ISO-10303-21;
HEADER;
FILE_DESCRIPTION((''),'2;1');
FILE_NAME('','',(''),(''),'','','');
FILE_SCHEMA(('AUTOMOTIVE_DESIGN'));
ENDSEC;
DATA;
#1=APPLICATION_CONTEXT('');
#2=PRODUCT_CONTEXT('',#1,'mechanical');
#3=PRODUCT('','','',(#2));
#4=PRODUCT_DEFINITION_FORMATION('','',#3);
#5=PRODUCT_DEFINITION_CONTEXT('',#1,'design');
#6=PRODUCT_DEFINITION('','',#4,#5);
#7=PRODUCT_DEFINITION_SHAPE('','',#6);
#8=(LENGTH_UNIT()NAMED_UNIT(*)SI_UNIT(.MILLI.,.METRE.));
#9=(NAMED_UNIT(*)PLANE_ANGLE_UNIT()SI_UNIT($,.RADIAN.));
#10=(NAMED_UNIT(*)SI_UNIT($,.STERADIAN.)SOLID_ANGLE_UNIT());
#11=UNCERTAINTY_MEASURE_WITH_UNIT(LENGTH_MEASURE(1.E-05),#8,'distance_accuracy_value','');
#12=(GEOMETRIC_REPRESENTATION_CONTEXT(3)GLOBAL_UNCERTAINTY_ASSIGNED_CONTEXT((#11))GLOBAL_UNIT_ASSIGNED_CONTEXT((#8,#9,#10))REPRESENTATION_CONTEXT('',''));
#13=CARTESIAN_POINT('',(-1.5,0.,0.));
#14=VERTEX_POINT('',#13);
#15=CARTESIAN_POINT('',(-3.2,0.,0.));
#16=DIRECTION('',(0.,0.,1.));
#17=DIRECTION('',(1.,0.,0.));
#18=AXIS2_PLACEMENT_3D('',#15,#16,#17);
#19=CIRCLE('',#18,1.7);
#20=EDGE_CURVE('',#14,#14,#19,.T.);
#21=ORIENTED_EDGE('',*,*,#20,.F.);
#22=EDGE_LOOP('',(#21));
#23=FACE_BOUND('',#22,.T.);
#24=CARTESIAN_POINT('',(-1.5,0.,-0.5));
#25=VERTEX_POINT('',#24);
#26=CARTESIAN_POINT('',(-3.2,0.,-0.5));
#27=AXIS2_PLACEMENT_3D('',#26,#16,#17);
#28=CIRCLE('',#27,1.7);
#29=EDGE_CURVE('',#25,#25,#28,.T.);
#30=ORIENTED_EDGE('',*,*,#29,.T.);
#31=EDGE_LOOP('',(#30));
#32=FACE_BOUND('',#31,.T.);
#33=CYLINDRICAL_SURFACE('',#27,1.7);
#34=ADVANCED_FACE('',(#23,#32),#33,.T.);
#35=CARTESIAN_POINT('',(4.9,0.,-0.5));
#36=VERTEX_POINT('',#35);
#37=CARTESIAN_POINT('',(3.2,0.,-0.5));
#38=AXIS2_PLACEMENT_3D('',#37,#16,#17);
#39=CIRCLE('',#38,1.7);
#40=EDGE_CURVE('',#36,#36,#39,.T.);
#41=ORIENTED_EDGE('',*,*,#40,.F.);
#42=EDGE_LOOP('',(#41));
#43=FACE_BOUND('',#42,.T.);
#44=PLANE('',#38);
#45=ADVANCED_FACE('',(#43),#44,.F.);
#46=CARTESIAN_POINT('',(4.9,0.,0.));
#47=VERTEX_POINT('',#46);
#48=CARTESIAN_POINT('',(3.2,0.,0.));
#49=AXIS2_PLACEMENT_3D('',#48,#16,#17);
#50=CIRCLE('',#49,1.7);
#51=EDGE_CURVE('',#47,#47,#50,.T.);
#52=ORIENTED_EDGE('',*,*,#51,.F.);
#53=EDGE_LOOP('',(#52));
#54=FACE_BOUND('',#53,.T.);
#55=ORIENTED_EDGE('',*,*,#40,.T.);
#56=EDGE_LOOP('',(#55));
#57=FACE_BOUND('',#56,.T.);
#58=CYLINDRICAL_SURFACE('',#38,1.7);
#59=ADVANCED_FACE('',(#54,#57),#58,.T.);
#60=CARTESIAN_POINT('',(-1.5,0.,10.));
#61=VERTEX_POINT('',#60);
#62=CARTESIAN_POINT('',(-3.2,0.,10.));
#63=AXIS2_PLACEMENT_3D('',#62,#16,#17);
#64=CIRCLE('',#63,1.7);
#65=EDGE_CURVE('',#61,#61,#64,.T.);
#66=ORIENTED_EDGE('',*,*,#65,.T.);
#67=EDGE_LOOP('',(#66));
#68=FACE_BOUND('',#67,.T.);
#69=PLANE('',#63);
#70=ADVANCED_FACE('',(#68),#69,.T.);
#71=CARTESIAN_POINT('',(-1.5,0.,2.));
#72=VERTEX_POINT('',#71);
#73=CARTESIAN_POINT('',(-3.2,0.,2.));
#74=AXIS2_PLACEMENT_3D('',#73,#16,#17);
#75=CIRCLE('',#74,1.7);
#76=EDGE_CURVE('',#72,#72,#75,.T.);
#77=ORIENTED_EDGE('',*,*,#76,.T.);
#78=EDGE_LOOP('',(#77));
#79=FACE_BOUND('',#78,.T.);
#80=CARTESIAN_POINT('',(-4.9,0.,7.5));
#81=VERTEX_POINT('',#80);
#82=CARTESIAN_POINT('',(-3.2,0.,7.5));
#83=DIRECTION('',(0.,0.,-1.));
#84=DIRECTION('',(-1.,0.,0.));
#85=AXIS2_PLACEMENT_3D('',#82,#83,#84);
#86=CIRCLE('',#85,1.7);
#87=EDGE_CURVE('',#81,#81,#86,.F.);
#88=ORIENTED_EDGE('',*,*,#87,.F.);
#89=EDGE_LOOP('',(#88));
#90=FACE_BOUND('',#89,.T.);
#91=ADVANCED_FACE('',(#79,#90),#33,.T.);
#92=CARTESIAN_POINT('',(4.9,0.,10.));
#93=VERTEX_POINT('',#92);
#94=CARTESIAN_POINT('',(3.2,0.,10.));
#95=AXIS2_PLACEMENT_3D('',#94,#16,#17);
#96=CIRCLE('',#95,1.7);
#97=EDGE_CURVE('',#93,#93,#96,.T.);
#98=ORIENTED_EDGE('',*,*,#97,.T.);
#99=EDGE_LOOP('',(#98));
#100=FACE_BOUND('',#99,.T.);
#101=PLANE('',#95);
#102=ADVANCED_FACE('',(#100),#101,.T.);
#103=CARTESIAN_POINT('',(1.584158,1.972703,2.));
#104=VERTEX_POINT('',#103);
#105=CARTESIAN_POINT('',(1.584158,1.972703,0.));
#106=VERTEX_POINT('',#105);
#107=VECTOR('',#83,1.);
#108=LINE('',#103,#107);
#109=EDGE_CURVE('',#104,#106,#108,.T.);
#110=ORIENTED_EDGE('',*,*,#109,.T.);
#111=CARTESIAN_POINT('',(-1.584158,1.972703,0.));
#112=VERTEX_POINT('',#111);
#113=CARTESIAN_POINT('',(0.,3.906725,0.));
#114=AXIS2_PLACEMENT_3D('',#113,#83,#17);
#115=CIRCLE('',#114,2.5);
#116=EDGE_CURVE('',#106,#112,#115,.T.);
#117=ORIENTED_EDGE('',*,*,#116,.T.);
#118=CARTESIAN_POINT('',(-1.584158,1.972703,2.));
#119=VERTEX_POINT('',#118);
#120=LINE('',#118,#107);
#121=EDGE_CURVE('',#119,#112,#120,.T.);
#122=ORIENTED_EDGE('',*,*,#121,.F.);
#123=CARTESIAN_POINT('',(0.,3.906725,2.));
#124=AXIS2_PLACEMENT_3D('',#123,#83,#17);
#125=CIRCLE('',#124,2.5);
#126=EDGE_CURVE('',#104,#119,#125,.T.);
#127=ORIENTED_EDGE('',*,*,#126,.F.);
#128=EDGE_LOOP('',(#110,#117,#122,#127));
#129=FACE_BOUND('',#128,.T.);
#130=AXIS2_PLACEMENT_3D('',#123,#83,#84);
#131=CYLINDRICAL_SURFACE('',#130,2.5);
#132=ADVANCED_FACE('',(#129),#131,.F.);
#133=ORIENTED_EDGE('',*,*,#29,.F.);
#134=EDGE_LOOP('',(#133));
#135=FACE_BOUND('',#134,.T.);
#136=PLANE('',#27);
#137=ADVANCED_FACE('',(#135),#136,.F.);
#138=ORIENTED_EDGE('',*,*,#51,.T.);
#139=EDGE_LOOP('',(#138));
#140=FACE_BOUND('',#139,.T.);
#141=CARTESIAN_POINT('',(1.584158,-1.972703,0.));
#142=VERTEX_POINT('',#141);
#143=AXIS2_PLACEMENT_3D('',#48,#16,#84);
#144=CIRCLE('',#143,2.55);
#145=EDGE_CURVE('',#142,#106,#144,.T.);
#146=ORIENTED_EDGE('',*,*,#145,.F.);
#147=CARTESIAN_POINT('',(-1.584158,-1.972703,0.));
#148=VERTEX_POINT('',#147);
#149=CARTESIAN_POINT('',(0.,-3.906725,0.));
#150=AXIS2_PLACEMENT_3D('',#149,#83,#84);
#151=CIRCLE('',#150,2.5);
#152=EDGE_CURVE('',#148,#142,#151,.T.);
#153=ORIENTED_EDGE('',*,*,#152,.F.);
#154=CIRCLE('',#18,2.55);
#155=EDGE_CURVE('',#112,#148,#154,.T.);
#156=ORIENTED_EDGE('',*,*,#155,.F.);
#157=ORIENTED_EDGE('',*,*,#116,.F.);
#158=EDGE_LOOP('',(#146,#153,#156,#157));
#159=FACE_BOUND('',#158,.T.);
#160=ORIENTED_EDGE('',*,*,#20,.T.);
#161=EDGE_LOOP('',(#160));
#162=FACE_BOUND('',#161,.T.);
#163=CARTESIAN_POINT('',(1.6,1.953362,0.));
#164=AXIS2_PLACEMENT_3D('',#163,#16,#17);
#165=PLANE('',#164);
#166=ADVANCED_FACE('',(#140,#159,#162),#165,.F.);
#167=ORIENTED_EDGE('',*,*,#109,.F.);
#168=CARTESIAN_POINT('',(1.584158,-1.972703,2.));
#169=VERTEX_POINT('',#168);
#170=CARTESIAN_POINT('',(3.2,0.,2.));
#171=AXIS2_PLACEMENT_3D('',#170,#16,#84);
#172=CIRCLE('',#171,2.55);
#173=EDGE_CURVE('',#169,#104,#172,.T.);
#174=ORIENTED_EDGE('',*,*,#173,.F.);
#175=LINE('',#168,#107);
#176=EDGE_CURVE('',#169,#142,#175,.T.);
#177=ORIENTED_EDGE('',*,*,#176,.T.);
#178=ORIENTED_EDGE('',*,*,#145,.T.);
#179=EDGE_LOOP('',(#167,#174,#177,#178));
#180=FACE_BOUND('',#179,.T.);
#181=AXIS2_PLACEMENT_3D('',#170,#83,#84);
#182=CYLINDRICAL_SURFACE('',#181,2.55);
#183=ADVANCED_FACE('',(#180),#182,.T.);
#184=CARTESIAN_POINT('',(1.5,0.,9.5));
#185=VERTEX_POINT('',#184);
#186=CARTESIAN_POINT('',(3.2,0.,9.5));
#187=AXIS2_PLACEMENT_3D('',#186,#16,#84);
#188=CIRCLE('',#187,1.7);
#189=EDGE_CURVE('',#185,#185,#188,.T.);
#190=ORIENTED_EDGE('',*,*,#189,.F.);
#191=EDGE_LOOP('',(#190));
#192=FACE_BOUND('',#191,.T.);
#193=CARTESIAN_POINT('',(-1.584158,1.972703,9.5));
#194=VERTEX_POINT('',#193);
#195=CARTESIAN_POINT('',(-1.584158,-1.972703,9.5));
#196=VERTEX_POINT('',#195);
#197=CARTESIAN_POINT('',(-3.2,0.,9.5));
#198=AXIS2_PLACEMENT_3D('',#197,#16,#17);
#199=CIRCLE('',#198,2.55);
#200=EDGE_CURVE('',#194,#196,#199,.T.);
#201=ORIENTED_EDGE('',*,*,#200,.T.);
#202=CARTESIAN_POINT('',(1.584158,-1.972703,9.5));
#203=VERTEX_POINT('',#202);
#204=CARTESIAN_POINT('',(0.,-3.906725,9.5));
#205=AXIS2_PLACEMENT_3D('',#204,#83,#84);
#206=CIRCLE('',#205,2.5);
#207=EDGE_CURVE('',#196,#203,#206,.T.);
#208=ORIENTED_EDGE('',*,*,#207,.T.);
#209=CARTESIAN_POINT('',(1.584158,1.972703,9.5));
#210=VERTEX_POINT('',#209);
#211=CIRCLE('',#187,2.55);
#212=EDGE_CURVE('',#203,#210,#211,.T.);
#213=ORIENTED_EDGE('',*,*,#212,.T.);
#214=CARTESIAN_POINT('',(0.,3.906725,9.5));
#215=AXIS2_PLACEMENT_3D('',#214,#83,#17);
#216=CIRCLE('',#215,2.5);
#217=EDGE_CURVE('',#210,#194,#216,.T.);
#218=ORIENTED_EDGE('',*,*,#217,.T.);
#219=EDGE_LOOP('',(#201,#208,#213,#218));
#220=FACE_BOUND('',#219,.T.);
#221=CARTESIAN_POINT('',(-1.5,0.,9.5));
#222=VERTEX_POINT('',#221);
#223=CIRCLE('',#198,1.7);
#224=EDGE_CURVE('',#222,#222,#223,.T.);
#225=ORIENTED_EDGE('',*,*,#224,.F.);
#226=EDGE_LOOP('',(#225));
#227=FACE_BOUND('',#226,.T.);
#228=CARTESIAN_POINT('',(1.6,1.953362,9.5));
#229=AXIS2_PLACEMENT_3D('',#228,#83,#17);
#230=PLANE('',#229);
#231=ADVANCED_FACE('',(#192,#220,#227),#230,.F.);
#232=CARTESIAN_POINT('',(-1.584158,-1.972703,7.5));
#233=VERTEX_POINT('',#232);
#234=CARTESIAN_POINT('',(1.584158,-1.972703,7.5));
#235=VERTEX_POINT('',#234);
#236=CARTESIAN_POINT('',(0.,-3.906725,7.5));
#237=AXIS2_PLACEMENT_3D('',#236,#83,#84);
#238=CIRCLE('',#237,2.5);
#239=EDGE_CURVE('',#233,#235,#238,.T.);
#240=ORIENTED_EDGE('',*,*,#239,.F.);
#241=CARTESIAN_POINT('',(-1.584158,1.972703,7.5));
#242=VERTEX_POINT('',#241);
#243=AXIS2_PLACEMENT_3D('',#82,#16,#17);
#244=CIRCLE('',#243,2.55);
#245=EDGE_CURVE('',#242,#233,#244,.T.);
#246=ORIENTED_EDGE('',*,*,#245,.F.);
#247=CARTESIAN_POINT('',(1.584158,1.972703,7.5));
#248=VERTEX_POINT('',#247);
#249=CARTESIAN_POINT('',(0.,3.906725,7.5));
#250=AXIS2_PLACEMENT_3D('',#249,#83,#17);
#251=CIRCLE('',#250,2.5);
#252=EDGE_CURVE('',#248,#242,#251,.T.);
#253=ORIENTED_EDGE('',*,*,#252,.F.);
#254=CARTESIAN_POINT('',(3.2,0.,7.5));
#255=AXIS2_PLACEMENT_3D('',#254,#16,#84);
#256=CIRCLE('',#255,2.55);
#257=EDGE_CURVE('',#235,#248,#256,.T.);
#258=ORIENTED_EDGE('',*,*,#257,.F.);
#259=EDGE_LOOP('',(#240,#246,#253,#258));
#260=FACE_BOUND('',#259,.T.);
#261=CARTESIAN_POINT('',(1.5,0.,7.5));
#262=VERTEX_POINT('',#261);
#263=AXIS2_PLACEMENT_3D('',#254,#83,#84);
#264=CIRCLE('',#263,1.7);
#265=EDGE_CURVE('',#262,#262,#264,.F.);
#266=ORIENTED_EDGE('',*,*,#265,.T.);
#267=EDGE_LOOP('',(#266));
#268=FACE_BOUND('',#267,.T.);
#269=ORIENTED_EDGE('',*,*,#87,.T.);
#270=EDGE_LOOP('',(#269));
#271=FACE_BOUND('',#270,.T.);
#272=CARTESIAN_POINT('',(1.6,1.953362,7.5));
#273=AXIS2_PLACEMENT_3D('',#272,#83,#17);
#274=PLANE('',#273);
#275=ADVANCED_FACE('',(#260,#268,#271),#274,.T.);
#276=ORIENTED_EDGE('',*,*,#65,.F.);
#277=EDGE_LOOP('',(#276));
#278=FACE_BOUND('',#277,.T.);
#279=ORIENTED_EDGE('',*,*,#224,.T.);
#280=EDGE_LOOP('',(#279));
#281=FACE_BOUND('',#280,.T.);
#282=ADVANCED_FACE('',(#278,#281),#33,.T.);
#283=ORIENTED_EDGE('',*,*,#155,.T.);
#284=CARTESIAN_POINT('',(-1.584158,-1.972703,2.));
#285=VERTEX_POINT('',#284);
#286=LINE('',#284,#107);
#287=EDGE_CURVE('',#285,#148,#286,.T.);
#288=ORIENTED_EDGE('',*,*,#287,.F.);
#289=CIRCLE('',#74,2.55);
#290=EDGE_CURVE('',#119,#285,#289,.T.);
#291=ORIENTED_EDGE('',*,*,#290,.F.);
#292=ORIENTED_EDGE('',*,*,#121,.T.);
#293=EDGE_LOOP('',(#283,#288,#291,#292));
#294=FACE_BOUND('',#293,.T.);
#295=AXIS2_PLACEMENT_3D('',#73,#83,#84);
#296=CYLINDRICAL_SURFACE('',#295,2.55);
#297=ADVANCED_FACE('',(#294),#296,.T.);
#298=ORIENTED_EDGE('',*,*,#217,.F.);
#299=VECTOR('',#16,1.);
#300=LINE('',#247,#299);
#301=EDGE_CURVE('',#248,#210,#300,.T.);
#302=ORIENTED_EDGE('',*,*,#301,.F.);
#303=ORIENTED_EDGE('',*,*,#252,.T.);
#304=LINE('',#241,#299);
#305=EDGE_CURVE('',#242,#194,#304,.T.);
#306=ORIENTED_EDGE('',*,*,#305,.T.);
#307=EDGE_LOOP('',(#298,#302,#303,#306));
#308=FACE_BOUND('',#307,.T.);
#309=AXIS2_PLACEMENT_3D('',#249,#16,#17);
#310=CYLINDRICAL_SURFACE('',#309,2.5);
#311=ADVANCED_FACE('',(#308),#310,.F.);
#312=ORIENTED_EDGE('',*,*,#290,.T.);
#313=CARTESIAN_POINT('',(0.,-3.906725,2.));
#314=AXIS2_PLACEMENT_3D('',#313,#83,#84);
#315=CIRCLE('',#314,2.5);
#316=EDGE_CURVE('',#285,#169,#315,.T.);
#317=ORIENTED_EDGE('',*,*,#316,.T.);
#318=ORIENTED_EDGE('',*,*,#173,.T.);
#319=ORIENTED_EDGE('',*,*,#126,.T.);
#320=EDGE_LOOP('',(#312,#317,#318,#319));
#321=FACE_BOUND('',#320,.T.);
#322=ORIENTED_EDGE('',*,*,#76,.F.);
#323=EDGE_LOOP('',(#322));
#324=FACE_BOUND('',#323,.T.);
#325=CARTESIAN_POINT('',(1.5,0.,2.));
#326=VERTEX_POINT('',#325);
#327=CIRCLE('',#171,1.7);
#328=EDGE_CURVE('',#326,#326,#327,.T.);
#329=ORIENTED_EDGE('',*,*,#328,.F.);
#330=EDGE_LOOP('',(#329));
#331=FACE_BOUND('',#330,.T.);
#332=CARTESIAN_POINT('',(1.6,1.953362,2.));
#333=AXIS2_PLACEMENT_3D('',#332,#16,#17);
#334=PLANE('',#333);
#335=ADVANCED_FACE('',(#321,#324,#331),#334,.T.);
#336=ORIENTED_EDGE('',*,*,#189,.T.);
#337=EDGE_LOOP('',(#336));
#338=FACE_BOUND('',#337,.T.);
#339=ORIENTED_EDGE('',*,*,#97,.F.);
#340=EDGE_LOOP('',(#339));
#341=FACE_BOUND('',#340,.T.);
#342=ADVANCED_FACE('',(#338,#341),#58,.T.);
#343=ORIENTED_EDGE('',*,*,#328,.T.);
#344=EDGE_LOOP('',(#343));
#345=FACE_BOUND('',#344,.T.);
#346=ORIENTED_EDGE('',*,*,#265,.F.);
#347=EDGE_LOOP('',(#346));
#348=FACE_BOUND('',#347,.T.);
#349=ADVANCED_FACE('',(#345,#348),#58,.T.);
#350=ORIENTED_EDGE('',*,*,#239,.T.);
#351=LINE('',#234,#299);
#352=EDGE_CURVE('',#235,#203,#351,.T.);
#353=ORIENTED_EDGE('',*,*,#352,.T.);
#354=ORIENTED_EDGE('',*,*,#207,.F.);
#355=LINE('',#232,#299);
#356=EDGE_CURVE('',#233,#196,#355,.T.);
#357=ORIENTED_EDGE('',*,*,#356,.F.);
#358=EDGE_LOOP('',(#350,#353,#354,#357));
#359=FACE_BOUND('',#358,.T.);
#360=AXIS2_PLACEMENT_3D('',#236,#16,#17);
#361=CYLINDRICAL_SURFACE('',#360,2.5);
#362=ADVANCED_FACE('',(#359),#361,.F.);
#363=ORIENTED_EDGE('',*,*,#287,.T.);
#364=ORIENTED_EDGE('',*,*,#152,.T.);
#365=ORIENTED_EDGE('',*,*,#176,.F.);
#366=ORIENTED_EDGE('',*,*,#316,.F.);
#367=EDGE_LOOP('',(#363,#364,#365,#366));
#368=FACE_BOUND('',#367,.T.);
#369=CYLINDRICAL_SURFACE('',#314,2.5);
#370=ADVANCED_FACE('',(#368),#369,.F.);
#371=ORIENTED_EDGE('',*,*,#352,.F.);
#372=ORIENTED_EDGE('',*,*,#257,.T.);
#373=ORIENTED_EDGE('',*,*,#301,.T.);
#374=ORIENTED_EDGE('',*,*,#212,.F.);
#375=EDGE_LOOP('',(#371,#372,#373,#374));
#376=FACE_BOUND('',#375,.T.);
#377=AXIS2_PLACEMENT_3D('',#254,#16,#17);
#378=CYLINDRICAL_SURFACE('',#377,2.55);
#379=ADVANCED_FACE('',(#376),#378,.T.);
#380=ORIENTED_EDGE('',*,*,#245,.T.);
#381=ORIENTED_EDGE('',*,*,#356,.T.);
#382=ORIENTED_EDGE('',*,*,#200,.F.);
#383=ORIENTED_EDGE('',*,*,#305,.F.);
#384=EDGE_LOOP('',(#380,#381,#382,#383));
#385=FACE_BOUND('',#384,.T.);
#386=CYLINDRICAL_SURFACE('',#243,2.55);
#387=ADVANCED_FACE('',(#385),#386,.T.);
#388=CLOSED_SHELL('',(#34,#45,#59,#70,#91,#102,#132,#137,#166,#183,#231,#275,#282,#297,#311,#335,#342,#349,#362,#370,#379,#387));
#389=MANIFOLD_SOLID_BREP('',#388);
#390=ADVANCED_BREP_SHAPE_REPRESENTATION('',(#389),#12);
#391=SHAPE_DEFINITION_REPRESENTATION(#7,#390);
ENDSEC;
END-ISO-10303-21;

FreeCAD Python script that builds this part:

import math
import FreeCAD as App
import Part
import Sketcher

V = App.Vector

doc = App.newDocument("Part")
params = doc.addObject("Spreadsheet::Sheet", "Params")
for row, (alias, value) in enumerate([
    ("sketch1_diameter", "3.4 mm"),
    ("sketch1_radius", "2.5 mm"),
    ("sketch1_radius2", "2.55 mm"),
    ("pad1_length", "2 mm"),
    ("sketch2_diameter", "3.4 mm"),
    ("pad2_length", "8 mm"),
    ("pad2_length2", "2.5 mm"),
], start=1):
    params.set(f"A{row}", alias)
    params.set(f"B{row}", "=" + value)
    params.setAlias(f"B{row}", alias)

body = doc.addObject("PartDesign::Body", "Body")

# Sketch on XY plane
sketch1 = body.newObject("Sketcher::SketchObject", "Sketch")
sketch1.AttachmentSupport = (doc.getObject("XY_Plane"), [""])
sketch1.MapMode = "FlatFace"
sketch1.addGeometry([
    Part.ArcOfCircle(Part.Circle(V(-3.2, 0, 0), V(0, 0, 1), 2.5), math.radians(51), math.radians(309)),  # 0
    Part.ArcOfCircle(Part.Circle(V(0, -3.9, 0), V(0, 0, 1), 2.5), math.radians(51), math.radians(129)),  # 1
    Part.ArcOfCircle(Part.Circle(V(3.2, 0, 0), V(0, 0, 1), 2.5), math.radians(-129), math.radians(129)),  # 2
    Part.ArcOfCircle(Part.Circle(V(0, 3.9, 0), V(0, 0, 1), 2.5), math.radians(-129), math.radians(-51)),  # 3
    Part.Circle(V(-3.2, 0, 0), V(0, 0, 1), 1.7),  # 4
    Part.Circle(V(3.2, 0, 0), V(0, 0, 1), 1.7),  # 5
], False)
sketch1.addConstraint([
    Sketcher.Constraint("Tangent", 0, 2, 1, 2),
    Sketcher.Constraint("Tangent", 1, 1, 2, 1),
    Sketcher.Constraint("Tangent", 2, 2, 3, 2),
    Sketcher.Constraint("Tangent", 3, 1, 0, 1),
    Sketcher.Constraint("Coincident", 4, 3, 0, 3),
    Sketcher.Constraint("Coincident", 5, 3, 2, 3),
    Sketcher.Constraint("Equal", 0, 2),
    Sketcher.Constraint("Equal", 1, 3),
    Sketcher.Constraint("Equal", 4, 5),
    Sketcher.Constraint("Symmetric", 0, 3, 2, 3, -1, 1),
    Sketcher.Constraint("PointOnObject", 0, 3, -1),
    Sketcher.Constraint("Diameter", 4, 3.4),
    Sketcher.Constraint("Radius", 1, 2.5),
    Sketcher.Constraint("Radius", 0, 2.55),
    Sketcher.Constraint("DistanceX", 0, 3, -1, 1, 3.2),
])
sketch1.setExpression("Constraints[11]", "Params.sketch1_diameter")
sketch1.setExpression("Constraints[12]", "Params.sketch1_radius")
sketch1.setExpression("Constraints[13]", "Params.sketch1_radius2")
pad1 = body.newObject("PartDesign::Pad", "Pad")
pad1.Profile = sketch1
pad1.setExpression("Length", "Params.pad1_length")

# Sketch on XY plane
sketch2 = body.newObject("Sketcher::SketchObject", "Sketch001")
sketch2.AttachmentSupport = (doc.getObject("XY_Plane"), [""])
sketch2.MapMode = "FlatFace"
sketch2.AttachmentOffset = App.Placement(V(0, 0, 2), App.Rotation())
sketch2.addGeometry([
    Part.Circle(V(-3.2, 0, 0), V(0, 0, 1), 1.7),
    Part.Circle(V(3.2, 0, 0), V(0, 0, 1), 1.7),
], False)
sketch2.addConstraint([
    Sketcher.Constraint("Equal", 0, 1),
    Sketcher.Constraint("Symmetric", 0, 3, 1, 3, -1, 1),
    Sketcher.Constraint("PointOnObject", 0, 3, -1),
    Sketcher.Constraint("Diameter", 0, 3.4),
    Sketcher.Constraint("DistanceX", 0, 3, -1, 1, 3.2),
])
sketch2.setExpression("Constraints[3]", "Params.sketch2_diameter")
pad2 = body.newObject("PartDesign::Pad", "Pad001")
pad2.Profile = sketch2
pad2.Type = "TwoLengths"
pad2.setExpression("Length", "Params.pad2_length")
pad2.setExpression("Length2", "Params.pad2_length2")
doc.recompute()

datumplane = body.newObject("PartDesign::Plane", "DatumPlane")
datumplane.AttachmentSupport = (doc.getObject("XY_Plane"), [""])
datumplane.MapMode = "FlatFace"
datumplane.AttachmentOffset = App.Placement(V(0, 0, 4.75), App.Rotation())
mirrored = body.newObject("PartDesign::Mirrored", "Mirrored")
mirrored.Originals = [pad1]
mirrored.MirrorPlane = (datumplane, [""])
body.Tip = mirrored

doc.recompute()
